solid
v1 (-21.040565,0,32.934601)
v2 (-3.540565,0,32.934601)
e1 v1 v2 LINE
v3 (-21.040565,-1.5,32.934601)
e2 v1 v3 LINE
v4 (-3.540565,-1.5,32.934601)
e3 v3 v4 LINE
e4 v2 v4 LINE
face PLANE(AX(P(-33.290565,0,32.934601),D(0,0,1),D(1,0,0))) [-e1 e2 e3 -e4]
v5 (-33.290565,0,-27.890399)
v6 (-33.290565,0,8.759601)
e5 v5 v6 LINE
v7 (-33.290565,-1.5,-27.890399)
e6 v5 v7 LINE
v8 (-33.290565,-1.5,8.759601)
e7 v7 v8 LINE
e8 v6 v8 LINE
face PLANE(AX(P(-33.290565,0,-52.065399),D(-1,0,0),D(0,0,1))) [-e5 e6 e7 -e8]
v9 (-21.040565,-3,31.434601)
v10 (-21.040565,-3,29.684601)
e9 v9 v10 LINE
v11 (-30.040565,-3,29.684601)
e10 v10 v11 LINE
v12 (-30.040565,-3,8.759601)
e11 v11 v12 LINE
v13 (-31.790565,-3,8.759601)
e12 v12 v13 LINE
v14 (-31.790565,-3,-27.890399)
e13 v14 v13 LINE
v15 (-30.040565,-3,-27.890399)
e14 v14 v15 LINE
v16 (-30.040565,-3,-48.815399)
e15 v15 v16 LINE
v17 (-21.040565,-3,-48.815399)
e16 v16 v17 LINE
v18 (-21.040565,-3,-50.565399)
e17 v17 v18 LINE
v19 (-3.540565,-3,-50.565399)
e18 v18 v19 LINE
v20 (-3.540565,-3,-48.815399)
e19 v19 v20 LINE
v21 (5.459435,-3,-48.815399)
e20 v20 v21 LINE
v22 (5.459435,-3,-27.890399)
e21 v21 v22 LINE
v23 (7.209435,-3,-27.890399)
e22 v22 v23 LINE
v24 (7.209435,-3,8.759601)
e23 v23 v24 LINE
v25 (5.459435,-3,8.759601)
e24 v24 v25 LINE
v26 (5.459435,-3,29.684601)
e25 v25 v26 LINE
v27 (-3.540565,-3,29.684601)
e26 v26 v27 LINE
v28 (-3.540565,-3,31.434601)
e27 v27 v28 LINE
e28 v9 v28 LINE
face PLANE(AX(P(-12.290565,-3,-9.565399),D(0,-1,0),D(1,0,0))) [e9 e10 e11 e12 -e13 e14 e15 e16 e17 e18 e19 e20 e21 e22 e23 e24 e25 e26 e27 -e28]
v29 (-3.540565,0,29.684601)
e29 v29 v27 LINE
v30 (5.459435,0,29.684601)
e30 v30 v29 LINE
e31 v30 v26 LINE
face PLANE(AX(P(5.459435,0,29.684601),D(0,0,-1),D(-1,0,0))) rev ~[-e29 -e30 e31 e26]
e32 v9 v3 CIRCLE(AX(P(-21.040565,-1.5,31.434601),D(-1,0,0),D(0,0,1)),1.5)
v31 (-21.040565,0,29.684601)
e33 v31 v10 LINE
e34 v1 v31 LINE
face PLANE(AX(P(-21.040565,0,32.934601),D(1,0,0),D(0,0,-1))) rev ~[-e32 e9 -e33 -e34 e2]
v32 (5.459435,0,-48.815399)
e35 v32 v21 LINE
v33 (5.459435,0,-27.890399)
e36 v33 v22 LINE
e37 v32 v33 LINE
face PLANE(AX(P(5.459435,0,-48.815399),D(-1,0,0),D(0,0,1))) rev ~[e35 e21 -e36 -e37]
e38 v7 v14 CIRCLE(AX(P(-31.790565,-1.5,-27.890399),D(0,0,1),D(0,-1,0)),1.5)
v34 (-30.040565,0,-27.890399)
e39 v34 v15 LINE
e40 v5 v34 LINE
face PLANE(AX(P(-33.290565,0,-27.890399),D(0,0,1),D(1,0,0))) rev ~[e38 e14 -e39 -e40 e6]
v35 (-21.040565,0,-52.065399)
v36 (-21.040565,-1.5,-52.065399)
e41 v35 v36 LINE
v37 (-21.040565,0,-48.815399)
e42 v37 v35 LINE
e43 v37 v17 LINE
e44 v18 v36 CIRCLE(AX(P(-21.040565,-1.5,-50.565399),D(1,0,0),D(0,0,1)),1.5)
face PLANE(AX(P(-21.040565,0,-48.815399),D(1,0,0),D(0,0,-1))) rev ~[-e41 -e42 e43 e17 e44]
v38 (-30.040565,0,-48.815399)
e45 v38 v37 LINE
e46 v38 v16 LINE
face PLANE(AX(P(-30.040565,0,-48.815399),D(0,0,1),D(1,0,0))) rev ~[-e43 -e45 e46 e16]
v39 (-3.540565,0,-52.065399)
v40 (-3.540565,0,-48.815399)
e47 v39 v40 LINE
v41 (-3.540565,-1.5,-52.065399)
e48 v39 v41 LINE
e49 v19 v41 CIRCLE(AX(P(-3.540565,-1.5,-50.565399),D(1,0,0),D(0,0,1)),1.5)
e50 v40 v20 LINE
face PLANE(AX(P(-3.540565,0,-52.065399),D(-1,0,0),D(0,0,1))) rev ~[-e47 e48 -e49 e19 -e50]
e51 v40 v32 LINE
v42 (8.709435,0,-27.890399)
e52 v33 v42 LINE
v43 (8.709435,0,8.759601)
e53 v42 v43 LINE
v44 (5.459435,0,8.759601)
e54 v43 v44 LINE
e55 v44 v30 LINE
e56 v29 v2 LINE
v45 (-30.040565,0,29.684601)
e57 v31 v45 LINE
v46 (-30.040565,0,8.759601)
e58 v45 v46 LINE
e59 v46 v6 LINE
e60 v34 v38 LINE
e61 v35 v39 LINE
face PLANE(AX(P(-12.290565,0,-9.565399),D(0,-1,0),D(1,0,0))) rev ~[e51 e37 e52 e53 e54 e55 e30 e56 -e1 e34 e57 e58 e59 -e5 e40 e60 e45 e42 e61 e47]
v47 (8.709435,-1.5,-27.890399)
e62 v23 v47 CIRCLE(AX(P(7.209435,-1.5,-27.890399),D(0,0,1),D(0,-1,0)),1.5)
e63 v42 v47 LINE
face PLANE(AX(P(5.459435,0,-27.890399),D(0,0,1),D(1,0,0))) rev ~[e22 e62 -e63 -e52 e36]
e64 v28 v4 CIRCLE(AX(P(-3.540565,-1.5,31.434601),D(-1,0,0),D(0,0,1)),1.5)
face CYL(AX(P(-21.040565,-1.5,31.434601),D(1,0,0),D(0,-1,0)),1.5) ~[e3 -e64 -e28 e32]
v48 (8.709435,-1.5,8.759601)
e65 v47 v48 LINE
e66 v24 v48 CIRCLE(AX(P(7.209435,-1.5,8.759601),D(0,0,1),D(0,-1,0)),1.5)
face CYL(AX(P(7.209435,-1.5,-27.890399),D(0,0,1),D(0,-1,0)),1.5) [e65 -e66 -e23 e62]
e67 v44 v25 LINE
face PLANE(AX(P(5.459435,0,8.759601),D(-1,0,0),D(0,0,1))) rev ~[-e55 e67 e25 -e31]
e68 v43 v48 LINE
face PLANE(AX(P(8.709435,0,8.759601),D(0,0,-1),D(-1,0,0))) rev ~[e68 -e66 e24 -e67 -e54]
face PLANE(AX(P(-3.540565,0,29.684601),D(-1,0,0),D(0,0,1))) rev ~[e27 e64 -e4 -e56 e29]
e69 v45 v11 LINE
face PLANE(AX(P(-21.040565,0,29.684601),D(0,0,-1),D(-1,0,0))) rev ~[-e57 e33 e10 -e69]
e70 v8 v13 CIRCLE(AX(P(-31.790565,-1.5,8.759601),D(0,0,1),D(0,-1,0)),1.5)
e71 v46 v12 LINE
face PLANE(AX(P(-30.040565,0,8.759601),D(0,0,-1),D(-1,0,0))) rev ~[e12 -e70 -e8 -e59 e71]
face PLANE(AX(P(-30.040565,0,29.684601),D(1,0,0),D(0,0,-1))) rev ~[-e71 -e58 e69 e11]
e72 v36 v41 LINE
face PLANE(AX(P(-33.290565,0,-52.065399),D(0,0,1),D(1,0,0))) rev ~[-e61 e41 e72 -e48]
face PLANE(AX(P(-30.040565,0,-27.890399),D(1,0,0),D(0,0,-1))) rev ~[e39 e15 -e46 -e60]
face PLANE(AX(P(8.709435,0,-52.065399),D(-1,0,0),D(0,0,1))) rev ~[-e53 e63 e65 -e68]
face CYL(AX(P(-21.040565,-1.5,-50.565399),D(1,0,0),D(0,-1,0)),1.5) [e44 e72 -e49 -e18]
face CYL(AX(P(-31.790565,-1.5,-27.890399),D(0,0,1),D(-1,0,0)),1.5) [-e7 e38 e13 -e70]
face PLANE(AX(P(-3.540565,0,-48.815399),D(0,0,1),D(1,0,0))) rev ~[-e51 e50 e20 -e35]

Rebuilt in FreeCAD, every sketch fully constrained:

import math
import FreeCAD as App
import Part
import Sketcher

V = App.Vector
Q = App.Units.Quantity


def edges_at(feature, points):
    """Names of the edges that pass closest to the given points."""
    edges = feature.Shape.Edges
    near = lambda p: min(range(len(edges)), key=lambda i: edges[i].distToShape(Part.Vertex(*p))[0])
    return sorted({f"Edge{near(p) + 1}" for p in points})


def add_polygon(sketch, points):
    """Adds a closed chain of lines whose ends are joined by coincident constraints."""
    first, n = sketch.GeometryCount, len(points)
    for a, b in zip(points, points[1:] + points[:1]):
        sketch.addGeometry(Part.LineSegment(App.Vector(*a, 0), App.Vector(*b, 0)), False)
    for i in range(n):
        sketch.addConstraint(Sketcher.Constraint("Coincident", first + i, 2, first + (i + 1) % n, 1))

doc = App.newDocument("Part")
body = doc.addObject("PartDesign::Body", "Body")

sketch1 = doc.addObject("Sketcher::SketchObject", "Sketch")
body.addObject(sketch1)
sketch1.AttachmentSupport = (doc.XZ_Plane, [""])
sketch1.MapMode = "FlatFace"
add_polygon(sketch1, [(-33, 33), (-33, -52), (9, -52), (9, 33)])
sketch1.addConstraint(Sketcher.Constraint("Vertical", 0))
sketch1.addConstraint(Sketcher.Constraint("Horizontal", 1))
sketch1.addConstraint(Sketcher.Constraint("Vertical", 2))
sketch1.addConstraint(Sketcher.Constraint("Horizontal", 3))
sketch1.addConstraint(Sketcher.Constraint("DistanceX", 1, 1, 1, 2, Q("42 mm")))
sketch1.addConstraint(Sketcher.Constraint("DistanceY", 0, 2, 0, 1, Q("85 mm")))
sketch1.addConstraint(Sketcher.Constraint("DistanceY", 0, 2, -1, 1, Q("52.065399 mm")))
sketch1.addConstraint(Sketcher.Constraint("DistanceX", 0, 2, -1, 1, Q("33.290565 mm")))
pad1 = doc.addObject("PartDesign::Pad", "Pad")
body.addObject(pad1)
pad1.Profile = sketch1
pad1.Length = 3
doc.recompute()

fillet = doc.addObject("PartDesign::Fillet", "Fillet")
body.addObject(fillet)
fillet.Base = (pad1, edges_at(pad1, [
    (-33.291, -1.5, 32.935),
    (8.709, -1.5, 32.935),
    (8.709, -1.5, -52.065),
    (-33.291, -1.5, -52.065),
]))
fillet.Radius = 3

sketch2 = doc.addObject("Sketcher::SketchObject", "Sketch001")
body.addObject(sketch2)
sketch2.AttachmentSupport = (doc.XZ_Plane, [""])
sketch2.MapMode = "FlatFace"
sketch2.addGeometry(Part.LineSegment(V(5.5, 8.8, 0), V(5.5, 29.7, 0)), False)
sketch2.addGeometry(Part.LineSegment(V(5.5, 29.7, 0), V(-3.5, 29.7, 0)), False)
sketch2.addGeometry(Part.LineSegment(V(-3.5, 29.7, 0), V(-3.5, 32.9, 0)), False)
sketch2.addGeometry(Part.LineSegment(V(-3.5, 32.9, 0), V(5.7, 32.9, 0)), False)
sketch2.addGeometry(Part.ArcOfCircle(Part.Circle(V(5.7, 29.9, 0), V(0, 0, 1), 3), math.radians(0), math.radians(90)), False)
sketch2.addGeometry(Part.LineSegment(V(8.7, 29.9, 0), V(8.7, 8.8, 0)), False)
sketch2.addGeometry(Part.LineSegment(V(8.7, 8.8, 0), V(5.5, 8.8, 0)), False)
sketch2.addGeometry(Part.LineSegment(V(-21, 32.9, 0), V(-21, 29.7, 0)), False)
sketch2.addGeometry(Part.LineSegment(V(-21, 29.7, 0), V(-30, 29.7, 0)), False)
sketch2.addGeometry(Part.LineSegment(V(-30, 29.7, 0), V(-30, 8.8, 0)), False)
sketch2.addGeometry(Part.LineSegment(V(-30, 8.8, 0), V(-33.3, 8.8, 0)), False)
sketch2.addGeometry(Part.LineSegment(V(-33.3, 8.8, 0), V(-33.3, 29.9, 0)), False)
sketch2.addGeometry(Part.ArcOfCircle(Part.Circle(V(-30.3, 29.9, 0), V(0, 0, 1), 3), math.radians(90), math.radians(180)), False)
sketch2.addGeometry(Part.LineSegment(V(-30.3, 32.9, 0), V(-21, 32.9, 0)), False)
sketch2.addGeometry(Part.LineSegment(V(-33.3, -27.9, 0), V(-30, -27.9, 0)), False)
sketch2.addGeometry(Part.LineSegment(V(-30, -27.9, 0), V(-30, -48.8, 0)), False)
sketch2.addGeometry(Part.LineSegment(V(-30, -48.8, 0), V(-21, -48.8, 0)), False)
sketch2.addGeometry(Part.LineSegment(V(-21, -48.8, 0), V(-21, -52.1, 0)), False)
sketch2.addGeometry(Part.LineSegment(V(-21, -52.1, 0), V(-30.3, -52.1, 0)), False)
sketch2.addGeometry(Part.ArcOfCircle(Part.Circle(V(-30.3, -49.1, 0), V(0, 0, 1), 3), math.radians(-180), math.radians(-90)), False)
sketch2.addGeometry(Part.LineSegment(V(-33.3, -49.1, 0), V(-33.3, -27.9, 0)), False)
sketch2.addGeometry(Part.LineSegment(V(5.5, -48.8, 0), V(5.5, -27.9, 0)), False)
sketch2.addGeometry(Part.LineSegment(V(5.5, -27.9, 0), V(8.7, -27.9, 0)), False)
sketch2.addGeometry(Part.LineSegment(V(8.7, -27.9, 0), V(8.7, -49.1, 0)), False)
sketch2.addGeometry(Part.ArcOfCircle(Part.Circle(V(5.7, -49.1, 0), V(0, 0, 1), 3), math.radians(-90), math.radians(0)), False)
sketch2.addGeometry(Part.LineSegment(V(5.7, -52.1, 0), V(-3.5, -52.1, 0)), False)
sketch2.addGeometry(Part.LineSegment(V(-3.5, -52.1, 0), V(-3.5, -48.8, 0)), False)
sketch2.addGeometry(Part.LineSegment(V(-3.5, -48.8, 0), V(5.5, -48.8, 0)), False)
sketch2.addConstraint(Sketcher.Constraint("Coincident", 0, 2, 1, 1))
sketch2.addConstraint(Sketcher.Constraint("Coincident", 1, 2, 2, 1))
sketch2.addConstraint(Sketcher.Constraint("Coincident", 2, 2, 3, 1))
sketch2.addConstraint(Sketcher.Constraint("Tangent", 3, 2, 4, 2))
sketch2.addConstraint(Sketcher.Constraint("Tangent", 4, 1, 5, 1))
sketch2.addConstraint(Sketcher.Constraint("Coincident", 5, 2, 6, 1))
sketch2.addConstraint(Sketcher.Constraint("Coincident", 6, 2, 0, 1))
sketch2.addConstraint(Sketcher.Constraint("Coincident", 7, 2, 8, 1))
sketch2.addConstraint(Sketcher.Constraint("Coincident", 8, 2, 9, 1))
sketch2.addConstraint(Sketcher.Constraint("Coincident", 9, 2, 10, 1))
sketch2.addConstraint(Sketcher.Constraint("Coincident", 10, 2, 11, 1))
sketch2.addConstraint(Sketcher.Constraint("Tangent", 11, 2, 12, 2))
sketch2.addConstraint(Sketcher.Constraint("Tangent", 12, 1, 13, 1))
sketch2.addConstraint(Sketcher.Constraint("Coincident", 13, 2, 7, 1))
sketch2.addConstraint(Sketcher.Constraint("Coincident", 14, 2, 15, 1))
sketch2.addConstraint(Sketcher.Constraint("Coincident", 15, 2, 16, 1))
sketch2.addConstraint(Sketcher.Constraint("Coincident", 16, 2, 17, 1))
sketch2.addConstraint(Sketcher.Constraint("Coincident", 17, 2, 18, 1))
sketch2.addConstraint(Sketcher.Constraint("Tangent", 18, 2, 19, 2))
sketch2.addConstraint(Sketcher.Constraint("Tangent", 19, 1, 20, 1))
sketch2.addConstraint(Sketcher.Constraint("Coincident", 20, 2, 14, 1))
sketch2.addConstraint(Sketcher.Constraint("Coincident", 21, 2, 22, 1))
sketch2.addConstraint(Sketcher.Constraint("Coincident", 22, 2, 23, 1))
sketch2.addConstraint(Sketcher.Constraint("Tangent", 23, 2, 24, 2))
sketch2.addConstraint(Sketcher.Constraint("Tangent", 24, 1, 25, 1))
sketch2.addConstraint(Sketcher.Constraint("Coincident", 25, 2, 26, 1))
sketch2.addConstraint(Sketcher.Constraint("Coincident", 26, 2, 27, 1))
sketch2.addConstraint(Sketcher.Constraint("Coincident", 27, 2, 21, 1))
sketch2.addConstraint(Sketcher.Constraint("Vertical", 0))
sketch2.addConstraint(Sketcher.Constraint("Horizontal", 1))
sketch2.addConstraint(Sketcher.Constraint("Vertical", 2))
sketch2.addConstraint(Sketcher.Constraint("Horizontal", 3))
sketch2.addConstraint(Sketcher.Constraint("Vertical", 5))
sketch2.addConstraint(Sketcher.Constraint("Horizontal", 6))
sketch2.addConstraint(Sketcher.Constraint("Vertical", 7))
sketch2.addConstraint(Sketcher.Constraint("Horizontal", 8))
sketch2.addConstraint(Sketcher.Constraint("Vertical", 9))
sketch2.addConstraint(Sketcher.Constraint("Horizontal", 10))
sketch2.addConstraint(Sketcher.Constraint("Vertical", 11))
sketch2.addConstraint(Sketcher.Constraint("Horizontal", 13))
sketch2.addConstraint(Sketcher.Constraint("Horizontal", 14))
sketch2.addConstraint(Sketcher.Constraint("Vertical", 15))
sketch2.addConstraint(Sketcher.Constraint("Horizontal", 16))
sketch2.addConstraint(Sketcher.Constraint("Vertical", 17))
sketch2.addConstraint(Sketcher.Constraint("Horizontal", 18))
sketch2.addConstraint(Sketcher.Constraint("Vertical", 20))
sketch2.addConstraint(Sketcher.Constraint("Vertical", 21))
sketch2.addConstraint(Sketcher.Constraint("Horizontal", 22))
sketch2.addConstraint(Sketcher.Constraint("Vertical", 23))
sketch2.addConstraint(Sketcher.Constraint("Horizontal", 25))
sketch2.addConstraint(Sketcher.Constraint("Vertical", 26))
sketch2.addConstraint(Sketcher.Constraint("Horizontal", 27))
sketch2.addConstraint(Sketcher.Constraint("Equal", 4, 12))
sketch2.addConstraint(Sketcher.Constraint("Equal", 12, 19))
sketch2.addConstraint(Sketcher.Constraint("Equal", 19, 24))
sketch2.addConstraint(Sketcher.Constraint("Horizontal", 4, 3, 12, 3))
sketch2.addConstraint(Sketcher.Constraint("Horizontal", 19, 3, 24, 3))
sketch2.addConstraint(Sketcher.Constraint("Horizontal", 1, 2, 7, 2))
sketch2.addConstraint(Sketcher.Constraint("Horizontal", 6, 2, 9, 2))
sketch2.addConstraint(Sketcher.Constraint("Horizontal", 20, 2, 21, 2))
sketch2.addConstraint(Sketcher.Constraint("Horizontal", 16, 2, 26, 2))
sketch2.addConstraint(Sketcher.Constraint("Vertical", 12, 3, 19, 3))
sketch2.addConstraint(Sketcher.Constraint("Vertical", 4, 3, 24, 3))
sketch2.addConstraint(Sketcher.Constraint("Vertical", 9, 2, 14, 2))
sketch2.addConstraint(Sketcher.Constraint("Vertical", 13, 2, 16, 2))
sketch2.addConstraint(Sketcher.Constraint("Vertical", 6, 2, 21, 2))
sketch2.addConstraint(Sketcher.Constraint("Vertical", 2, 2, 25, 2))
sketch2.addConstraint(Sketcher.Constraint("Equal", 1, 8))
sketch2.addConstraint(Sketcher.Constraint("Equal", 6, 10))
sketch2.addConstraint(Sketcher.Constraint("Equal", 22, 2))
sketch2.addConstraint(Sketcher.Constraint("Equal", 9, 15))
sketch2.addConstraint(Sketcher.Constraint("Equal", 7, 17))
sketch2.addConstraint(Sketcher.Constraint("Radius", 4, Q("2.999999 mm")))
sketch2.addConstraint(Sketcher.Constraint("DistanceX", 1, 2, 1, 1, Q("9 mm")))
sketch2.addConstraint(Sketcher.Constraint("DistanceX", 12, 3, 4, 3, Q("36.000001 mm")))
sketch2.addConstraint(Sketcher.Constraint("DistanceY", 19, 3, 12, 3, Q("78.999999 mm")))
sketch2.addConstraint(Sketcher.Constraint("DistanceX", 3, 1, 3, 2, Q("9.25 mm")))
sketch2.addConstraint(Sketcher.Constraint("DistanceY", 0, 1, 0, 2, Q("20.925 mm")))
sketch2.addConstraint(Sketcher.Constraint("DistanceY", -1, 1, 4, 3, Q("29.934602 mm")))
sketch2.addConstraint(Sketcher.Constraint("DistanceX", -1, 1, 4, 3, Q("5.709436 mm")))
pocket1 = doc.addObject("PartDesign::Pocket", "Pocket")
body.addObject(pocket1)
pocket1.Profile = sketch2
pocket1.Type = "ThroughAll"
pocket1.Reversed = True
doc.recompute()

fillet2 = doc.addObject("PartDesign::Fillet", "Fillet001")
body.addObject(fillet2)
fillet2.Base = (pocket1, edges_at(pocket1, [
    (-12.291, -3, 32.935),
    (8.709, -3, -9.565),
    (-12.291, -3, -52.065),
    (-33.291, -3, -9.565),
]))
fillet2.Radius = 1.5

doc.recompute()
